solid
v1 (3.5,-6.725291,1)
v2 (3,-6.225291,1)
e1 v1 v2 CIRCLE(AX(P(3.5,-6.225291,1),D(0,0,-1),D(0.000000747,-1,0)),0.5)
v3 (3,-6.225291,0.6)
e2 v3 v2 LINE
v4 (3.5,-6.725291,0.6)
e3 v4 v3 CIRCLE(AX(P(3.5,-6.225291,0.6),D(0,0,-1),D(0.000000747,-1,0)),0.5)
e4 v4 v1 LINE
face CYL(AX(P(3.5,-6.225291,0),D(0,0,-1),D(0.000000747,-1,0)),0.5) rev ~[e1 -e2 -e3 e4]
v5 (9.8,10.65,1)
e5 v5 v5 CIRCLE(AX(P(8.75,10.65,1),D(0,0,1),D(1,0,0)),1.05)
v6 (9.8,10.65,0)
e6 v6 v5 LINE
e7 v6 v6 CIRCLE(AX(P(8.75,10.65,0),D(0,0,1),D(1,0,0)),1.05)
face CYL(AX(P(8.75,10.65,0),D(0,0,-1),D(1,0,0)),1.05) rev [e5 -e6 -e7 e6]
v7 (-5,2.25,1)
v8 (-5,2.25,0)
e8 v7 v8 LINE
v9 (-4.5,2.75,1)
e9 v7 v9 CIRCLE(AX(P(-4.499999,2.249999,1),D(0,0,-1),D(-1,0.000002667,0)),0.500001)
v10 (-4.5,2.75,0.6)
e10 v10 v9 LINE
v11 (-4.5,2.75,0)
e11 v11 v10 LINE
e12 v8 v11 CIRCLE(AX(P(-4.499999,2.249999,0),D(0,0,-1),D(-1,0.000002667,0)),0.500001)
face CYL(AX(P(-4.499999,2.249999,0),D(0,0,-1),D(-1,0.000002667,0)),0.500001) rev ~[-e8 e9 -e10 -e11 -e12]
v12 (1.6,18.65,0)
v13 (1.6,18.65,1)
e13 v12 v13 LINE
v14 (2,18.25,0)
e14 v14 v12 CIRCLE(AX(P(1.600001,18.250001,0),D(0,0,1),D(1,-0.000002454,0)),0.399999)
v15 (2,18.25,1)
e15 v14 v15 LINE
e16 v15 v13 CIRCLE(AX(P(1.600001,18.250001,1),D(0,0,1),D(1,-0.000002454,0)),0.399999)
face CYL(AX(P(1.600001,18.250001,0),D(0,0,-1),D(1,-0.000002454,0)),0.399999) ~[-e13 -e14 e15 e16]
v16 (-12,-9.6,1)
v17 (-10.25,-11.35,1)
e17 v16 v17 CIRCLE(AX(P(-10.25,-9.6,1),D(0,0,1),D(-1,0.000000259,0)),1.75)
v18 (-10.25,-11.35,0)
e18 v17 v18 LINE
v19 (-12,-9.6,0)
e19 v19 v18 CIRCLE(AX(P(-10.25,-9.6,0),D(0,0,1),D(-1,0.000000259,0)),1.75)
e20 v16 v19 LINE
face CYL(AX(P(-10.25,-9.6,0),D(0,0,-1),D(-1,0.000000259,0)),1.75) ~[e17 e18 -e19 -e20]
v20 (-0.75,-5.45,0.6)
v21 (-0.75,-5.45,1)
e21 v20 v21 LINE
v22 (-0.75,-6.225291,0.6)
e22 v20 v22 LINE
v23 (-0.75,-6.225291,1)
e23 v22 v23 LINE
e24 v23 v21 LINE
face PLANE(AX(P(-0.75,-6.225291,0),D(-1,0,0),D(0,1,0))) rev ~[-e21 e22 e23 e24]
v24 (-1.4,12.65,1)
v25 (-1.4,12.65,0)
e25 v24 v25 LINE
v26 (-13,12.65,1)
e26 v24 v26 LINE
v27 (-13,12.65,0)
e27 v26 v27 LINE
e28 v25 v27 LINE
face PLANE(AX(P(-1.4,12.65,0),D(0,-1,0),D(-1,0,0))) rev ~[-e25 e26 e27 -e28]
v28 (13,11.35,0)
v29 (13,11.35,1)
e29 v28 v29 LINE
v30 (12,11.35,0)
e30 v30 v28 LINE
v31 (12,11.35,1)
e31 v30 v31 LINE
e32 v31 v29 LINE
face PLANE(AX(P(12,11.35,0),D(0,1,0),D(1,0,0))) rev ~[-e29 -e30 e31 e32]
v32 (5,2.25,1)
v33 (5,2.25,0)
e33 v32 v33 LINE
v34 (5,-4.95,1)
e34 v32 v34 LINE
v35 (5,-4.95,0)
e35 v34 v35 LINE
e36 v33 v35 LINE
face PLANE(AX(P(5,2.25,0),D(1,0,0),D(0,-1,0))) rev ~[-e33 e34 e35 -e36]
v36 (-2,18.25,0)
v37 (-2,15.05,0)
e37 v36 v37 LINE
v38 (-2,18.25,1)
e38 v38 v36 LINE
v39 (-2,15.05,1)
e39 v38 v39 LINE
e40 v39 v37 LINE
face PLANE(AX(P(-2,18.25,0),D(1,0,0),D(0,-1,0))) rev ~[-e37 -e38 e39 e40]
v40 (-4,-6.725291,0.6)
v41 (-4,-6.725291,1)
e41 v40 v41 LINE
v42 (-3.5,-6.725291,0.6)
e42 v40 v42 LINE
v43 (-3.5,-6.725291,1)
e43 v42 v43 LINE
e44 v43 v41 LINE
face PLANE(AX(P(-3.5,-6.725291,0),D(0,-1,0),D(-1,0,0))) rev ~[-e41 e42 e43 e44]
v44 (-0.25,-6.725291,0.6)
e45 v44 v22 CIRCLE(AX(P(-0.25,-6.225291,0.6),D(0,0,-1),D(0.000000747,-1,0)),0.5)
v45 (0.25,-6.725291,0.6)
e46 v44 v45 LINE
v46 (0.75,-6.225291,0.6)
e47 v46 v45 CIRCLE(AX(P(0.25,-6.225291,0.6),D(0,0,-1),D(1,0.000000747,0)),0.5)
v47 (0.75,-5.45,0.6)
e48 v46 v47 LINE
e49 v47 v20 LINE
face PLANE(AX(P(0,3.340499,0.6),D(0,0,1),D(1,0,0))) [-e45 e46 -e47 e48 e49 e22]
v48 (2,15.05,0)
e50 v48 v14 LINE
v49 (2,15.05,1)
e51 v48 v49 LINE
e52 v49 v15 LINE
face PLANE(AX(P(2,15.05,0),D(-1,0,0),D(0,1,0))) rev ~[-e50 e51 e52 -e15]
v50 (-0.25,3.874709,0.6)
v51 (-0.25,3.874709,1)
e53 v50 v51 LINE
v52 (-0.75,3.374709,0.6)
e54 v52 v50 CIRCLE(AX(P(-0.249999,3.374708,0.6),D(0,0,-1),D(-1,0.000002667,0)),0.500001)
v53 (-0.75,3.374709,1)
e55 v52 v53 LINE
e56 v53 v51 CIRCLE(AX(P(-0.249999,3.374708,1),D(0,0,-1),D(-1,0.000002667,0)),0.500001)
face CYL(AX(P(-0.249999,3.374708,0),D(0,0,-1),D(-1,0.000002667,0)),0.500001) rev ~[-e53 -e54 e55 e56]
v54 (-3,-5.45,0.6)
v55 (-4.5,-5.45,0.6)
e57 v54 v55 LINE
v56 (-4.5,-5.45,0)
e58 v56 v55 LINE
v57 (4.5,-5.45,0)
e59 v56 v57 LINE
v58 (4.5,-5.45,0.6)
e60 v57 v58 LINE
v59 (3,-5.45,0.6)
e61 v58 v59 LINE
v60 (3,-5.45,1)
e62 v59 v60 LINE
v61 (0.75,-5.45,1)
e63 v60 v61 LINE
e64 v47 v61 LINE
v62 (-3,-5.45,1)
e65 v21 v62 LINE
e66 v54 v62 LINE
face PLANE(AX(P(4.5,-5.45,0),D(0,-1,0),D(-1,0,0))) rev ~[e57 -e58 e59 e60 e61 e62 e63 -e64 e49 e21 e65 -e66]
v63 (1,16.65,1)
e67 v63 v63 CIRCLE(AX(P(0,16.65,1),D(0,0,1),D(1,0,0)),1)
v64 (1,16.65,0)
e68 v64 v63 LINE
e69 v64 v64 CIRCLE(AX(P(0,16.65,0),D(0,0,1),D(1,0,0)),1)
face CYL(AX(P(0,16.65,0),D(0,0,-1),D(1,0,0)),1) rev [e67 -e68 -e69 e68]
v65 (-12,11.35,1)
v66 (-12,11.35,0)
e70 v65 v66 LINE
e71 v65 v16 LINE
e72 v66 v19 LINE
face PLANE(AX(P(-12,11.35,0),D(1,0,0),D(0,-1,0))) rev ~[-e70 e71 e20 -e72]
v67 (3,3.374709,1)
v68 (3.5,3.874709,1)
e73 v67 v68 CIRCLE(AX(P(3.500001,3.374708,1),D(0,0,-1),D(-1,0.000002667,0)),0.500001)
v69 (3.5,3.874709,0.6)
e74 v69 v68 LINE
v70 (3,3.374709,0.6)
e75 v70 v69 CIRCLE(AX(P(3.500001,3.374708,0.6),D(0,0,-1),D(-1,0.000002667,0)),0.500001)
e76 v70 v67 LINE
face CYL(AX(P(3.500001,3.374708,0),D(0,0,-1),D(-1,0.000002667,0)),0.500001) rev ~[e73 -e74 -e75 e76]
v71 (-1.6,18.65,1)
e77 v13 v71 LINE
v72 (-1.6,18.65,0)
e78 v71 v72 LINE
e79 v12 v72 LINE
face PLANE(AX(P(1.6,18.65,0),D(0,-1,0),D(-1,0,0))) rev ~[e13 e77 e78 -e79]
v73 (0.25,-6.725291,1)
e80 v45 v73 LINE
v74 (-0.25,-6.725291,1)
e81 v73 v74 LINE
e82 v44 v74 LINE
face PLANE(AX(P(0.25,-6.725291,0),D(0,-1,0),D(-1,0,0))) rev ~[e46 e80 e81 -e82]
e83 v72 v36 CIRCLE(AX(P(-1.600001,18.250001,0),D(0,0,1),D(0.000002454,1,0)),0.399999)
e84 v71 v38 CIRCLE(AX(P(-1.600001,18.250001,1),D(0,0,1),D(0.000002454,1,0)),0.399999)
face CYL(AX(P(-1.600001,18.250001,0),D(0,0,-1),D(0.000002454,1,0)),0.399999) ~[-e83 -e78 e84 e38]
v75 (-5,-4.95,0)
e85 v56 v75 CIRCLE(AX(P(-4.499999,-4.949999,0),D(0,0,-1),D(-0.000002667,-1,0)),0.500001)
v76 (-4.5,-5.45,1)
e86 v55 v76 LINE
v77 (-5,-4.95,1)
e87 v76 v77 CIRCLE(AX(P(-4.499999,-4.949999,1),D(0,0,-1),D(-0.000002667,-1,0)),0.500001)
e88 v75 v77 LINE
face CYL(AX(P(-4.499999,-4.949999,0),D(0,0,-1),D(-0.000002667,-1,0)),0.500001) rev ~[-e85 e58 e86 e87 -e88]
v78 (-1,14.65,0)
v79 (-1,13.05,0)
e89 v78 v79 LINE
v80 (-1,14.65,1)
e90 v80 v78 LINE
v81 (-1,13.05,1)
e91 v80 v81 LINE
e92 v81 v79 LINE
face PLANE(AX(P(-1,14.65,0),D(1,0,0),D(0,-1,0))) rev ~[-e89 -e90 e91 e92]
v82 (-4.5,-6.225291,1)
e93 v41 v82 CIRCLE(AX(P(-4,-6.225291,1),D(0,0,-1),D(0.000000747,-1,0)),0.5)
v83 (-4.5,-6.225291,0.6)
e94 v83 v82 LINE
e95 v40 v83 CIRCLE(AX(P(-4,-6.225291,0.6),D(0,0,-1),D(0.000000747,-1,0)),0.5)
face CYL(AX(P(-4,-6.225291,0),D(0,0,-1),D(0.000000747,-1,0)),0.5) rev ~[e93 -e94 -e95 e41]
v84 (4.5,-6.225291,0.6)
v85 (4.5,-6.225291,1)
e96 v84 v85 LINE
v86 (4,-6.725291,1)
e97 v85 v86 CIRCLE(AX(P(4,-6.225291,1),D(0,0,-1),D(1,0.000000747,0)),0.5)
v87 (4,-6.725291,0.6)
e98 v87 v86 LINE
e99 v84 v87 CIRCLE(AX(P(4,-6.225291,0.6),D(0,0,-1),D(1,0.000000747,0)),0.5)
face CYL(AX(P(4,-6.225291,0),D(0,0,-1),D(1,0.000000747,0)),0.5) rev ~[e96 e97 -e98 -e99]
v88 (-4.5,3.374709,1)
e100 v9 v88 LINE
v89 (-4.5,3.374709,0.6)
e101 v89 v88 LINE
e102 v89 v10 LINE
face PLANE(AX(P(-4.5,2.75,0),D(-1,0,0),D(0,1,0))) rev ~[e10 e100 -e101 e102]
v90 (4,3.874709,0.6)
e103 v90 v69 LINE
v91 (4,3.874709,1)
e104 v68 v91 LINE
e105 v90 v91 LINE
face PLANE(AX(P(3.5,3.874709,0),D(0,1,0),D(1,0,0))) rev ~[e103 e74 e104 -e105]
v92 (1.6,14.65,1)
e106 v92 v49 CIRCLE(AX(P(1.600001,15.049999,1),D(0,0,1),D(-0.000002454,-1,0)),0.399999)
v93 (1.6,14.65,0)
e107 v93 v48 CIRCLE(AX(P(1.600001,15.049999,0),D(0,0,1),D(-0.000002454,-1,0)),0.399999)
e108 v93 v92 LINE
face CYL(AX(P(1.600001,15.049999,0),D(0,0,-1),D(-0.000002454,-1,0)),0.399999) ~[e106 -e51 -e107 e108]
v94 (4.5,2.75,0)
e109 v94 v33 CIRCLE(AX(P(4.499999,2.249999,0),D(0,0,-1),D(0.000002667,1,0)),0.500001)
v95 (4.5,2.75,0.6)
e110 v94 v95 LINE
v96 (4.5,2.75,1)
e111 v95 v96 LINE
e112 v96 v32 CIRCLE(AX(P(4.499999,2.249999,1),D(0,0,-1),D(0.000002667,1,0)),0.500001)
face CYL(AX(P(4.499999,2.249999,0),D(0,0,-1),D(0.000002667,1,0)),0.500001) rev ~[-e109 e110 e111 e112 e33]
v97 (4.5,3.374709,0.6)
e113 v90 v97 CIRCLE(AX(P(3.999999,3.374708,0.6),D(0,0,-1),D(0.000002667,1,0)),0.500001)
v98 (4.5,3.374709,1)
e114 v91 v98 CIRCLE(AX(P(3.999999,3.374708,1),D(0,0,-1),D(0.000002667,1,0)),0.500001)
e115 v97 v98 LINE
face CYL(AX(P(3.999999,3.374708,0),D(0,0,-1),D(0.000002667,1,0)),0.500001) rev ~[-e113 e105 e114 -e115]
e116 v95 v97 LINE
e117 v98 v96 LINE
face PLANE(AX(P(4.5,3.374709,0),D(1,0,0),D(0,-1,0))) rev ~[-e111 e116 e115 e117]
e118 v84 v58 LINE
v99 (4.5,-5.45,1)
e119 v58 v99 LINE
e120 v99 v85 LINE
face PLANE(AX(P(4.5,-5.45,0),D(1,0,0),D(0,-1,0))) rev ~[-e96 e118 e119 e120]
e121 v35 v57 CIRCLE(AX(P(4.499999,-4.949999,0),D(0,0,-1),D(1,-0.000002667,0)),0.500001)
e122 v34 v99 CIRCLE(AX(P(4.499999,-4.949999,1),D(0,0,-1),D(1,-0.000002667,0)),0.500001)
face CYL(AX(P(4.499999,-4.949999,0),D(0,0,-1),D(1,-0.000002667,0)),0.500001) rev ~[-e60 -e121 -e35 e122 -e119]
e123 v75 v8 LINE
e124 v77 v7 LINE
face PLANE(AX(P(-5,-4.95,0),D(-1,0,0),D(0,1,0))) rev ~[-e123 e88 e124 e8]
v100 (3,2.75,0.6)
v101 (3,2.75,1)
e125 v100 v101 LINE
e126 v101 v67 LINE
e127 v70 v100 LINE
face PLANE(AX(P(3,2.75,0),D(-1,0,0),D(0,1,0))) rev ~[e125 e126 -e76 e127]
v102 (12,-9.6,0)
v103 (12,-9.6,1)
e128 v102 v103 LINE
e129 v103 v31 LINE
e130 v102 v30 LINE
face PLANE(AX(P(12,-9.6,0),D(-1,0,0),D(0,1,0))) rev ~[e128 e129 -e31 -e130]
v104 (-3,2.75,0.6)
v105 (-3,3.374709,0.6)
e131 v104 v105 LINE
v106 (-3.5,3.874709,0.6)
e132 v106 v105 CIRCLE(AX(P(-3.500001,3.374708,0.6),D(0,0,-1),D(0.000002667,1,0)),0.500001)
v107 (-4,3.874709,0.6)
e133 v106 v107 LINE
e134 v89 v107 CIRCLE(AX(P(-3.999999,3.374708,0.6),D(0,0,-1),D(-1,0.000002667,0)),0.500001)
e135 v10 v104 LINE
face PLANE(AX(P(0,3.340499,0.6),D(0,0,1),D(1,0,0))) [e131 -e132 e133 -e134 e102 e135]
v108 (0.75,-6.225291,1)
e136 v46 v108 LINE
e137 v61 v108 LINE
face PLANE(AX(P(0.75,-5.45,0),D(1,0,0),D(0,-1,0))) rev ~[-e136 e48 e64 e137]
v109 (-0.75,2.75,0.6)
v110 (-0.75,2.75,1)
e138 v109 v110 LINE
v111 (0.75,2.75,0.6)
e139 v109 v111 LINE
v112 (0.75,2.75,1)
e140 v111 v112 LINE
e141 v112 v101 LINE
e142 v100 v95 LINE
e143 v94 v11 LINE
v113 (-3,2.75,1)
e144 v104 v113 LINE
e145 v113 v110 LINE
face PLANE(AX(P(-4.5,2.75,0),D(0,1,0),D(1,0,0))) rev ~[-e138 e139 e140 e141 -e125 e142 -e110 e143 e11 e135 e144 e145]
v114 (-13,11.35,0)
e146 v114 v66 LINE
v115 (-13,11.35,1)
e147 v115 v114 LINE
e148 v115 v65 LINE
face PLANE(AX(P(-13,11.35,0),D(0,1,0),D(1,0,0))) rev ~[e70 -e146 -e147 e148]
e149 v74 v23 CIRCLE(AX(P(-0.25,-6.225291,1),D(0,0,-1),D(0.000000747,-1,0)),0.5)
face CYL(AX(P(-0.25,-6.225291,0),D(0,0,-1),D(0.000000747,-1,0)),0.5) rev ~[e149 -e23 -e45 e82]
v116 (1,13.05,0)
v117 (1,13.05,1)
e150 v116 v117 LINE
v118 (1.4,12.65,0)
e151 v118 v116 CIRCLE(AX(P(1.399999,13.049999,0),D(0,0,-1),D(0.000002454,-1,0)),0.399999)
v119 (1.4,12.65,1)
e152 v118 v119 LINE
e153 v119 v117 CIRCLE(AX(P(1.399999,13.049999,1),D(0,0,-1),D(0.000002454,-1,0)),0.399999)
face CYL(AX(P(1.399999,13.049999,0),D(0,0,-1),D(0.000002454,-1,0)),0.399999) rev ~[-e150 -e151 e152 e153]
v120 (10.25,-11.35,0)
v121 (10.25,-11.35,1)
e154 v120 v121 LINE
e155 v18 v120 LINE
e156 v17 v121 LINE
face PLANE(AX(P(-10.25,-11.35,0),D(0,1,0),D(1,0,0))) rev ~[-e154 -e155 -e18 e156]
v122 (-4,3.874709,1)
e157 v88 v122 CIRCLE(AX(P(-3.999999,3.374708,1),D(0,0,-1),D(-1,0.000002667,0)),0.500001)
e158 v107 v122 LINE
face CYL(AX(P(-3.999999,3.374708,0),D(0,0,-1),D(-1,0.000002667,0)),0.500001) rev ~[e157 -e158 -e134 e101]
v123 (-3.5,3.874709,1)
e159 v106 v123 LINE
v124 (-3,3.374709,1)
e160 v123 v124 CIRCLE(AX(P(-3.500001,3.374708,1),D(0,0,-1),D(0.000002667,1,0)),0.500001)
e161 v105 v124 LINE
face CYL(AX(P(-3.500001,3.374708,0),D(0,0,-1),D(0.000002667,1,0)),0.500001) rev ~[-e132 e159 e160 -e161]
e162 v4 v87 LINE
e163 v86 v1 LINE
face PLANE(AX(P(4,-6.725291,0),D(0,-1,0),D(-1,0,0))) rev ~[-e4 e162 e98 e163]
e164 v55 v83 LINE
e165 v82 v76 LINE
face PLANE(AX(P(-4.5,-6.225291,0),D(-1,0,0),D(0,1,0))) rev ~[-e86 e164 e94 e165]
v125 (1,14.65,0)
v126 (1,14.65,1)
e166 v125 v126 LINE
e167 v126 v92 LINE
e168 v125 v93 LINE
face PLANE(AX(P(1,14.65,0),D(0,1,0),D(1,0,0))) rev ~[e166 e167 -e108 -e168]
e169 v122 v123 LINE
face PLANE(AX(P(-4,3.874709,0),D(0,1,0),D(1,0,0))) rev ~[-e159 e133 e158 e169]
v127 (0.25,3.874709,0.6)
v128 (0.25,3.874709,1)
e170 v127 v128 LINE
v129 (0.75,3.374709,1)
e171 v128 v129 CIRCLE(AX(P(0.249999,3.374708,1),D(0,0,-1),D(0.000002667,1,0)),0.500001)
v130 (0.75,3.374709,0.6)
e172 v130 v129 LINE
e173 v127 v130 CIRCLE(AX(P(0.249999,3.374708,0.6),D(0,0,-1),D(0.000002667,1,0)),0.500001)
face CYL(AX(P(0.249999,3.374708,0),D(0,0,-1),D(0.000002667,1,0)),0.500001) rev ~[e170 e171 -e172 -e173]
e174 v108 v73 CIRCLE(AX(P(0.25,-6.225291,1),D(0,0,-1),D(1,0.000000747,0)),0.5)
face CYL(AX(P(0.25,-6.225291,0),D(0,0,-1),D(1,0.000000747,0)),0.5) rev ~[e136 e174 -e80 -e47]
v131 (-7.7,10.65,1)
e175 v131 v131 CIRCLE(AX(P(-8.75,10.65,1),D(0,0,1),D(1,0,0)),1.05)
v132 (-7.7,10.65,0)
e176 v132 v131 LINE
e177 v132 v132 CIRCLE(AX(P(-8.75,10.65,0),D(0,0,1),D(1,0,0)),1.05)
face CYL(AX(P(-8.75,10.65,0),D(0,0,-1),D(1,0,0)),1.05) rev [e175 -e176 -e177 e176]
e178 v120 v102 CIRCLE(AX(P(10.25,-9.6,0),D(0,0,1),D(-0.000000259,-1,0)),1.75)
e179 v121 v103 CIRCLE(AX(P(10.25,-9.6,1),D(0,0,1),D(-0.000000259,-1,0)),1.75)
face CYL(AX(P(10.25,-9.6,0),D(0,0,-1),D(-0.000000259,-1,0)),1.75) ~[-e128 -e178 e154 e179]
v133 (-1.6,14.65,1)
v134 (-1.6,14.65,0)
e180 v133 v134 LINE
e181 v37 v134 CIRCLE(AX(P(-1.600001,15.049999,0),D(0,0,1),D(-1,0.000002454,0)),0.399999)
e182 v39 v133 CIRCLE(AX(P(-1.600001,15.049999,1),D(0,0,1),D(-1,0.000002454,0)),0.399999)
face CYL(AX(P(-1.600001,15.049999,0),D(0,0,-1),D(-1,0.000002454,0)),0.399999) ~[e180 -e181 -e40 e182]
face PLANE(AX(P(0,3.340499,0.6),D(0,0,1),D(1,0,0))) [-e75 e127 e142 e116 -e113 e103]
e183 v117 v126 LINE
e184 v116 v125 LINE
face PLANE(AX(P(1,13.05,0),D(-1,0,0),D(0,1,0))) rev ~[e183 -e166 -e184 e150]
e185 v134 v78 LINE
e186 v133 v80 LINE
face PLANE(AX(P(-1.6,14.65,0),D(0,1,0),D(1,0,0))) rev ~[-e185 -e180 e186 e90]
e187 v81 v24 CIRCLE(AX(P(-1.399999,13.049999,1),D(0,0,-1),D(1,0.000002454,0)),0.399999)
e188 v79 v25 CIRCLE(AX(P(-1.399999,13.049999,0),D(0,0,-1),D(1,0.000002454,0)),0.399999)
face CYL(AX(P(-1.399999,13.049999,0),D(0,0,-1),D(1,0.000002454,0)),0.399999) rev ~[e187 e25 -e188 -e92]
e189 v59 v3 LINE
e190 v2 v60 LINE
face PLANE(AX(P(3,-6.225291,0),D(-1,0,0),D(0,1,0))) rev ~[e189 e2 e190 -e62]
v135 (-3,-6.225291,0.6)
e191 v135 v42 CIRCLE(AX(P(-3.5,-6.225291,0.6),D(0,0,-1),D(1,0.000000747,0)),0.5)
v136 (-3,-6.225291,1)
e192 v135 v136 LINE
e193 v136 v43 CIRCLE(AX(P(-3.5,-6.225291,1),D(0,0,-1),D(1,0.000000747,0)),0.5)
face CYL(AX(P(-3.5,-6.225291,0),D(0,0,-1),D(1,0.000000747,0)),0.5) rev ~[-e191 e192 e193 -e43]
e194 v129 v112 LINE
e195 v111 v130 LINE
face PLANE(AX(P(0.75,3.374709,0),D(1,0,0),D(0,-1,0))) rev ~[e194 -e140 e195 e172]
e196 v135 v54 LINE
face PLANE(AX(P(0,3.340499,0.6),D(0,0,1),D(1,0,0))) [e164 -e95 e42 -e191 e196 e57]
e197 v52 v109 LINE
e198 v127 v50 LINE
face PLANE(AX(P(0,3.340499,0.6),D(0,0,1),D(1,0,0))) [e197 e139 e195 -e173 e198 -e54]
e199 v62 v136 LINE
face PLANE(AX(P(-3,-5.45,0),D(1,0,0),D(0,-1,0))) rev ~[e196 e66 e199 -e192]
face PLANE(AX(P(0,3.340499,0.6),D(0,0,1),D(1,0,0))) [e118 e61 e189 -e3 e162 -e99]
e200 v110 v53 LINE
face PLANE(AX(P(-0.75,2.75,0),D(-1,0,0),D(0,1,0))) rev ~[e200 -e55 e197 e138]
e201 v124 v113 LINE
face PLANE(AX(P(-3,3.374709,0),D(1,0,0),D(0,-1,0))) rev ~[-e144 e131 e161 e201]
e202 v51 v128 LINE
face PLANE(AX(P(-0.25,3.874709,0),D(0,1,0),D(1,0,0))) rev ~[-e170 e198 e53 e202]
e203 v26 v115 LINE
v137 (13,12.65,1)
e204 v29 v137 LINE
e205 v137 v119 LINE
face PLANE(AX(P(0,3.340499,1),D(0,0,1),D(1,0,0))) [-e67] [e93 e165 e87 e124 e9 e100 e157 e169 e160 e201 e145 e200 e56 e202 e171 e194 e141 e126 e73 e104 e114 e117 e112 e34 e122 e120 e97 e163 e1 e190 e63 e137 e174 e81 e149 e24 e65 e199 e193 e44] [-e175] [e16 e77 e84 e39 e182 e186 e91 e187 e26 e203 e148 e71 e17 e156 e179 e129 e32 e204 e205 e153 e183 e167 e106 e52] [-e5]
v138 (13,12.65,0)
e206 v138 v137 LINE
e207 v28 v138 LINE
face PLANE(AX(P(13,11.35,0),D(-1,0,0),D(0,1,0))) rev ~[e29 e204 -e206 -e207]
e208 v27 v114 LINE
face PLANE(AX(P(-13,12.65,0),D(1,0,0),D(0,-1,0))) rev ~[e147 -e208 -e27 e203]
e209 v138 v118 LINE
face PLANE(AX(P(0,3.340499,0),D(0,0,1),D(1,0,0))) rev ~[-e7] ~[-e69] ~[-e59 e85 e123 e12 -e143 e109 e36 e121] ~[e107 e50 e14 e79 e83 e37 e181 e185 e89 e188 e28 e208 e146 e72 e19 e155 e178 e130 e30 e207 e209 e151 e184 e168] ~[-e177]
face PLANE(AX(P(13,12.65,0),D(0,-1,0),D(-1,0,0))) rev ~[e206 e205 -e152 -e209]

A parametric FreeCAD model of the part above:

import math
import FreeCAD as App
import Part
import Sketcher
Q = App.Units.Quantity

doc = App.newDocument("Part")
body = doc.addObject("PartDesign::Body", "Body")

# Sketch on XY plane
sketch1 = body.newObject("Sketcher::SketchObject", "Sketch")
sketch1.AttachmentSupport = (doc.getObject("XY_Plane"), [""])
sketch1.MapMode = "FlatFace"
sketch1.addGeometry([
    Part.LineSegment(App.Vector(-10.25, -11.35, 0), App.Vector(10.25, -11.35, 0)),  # 0
    Part.ArcOfCircle(Part.Circle(App.Vector(10.25, -9.6, 0), App.Vector(0, 0, 1), 1.75), math.radians(-90.000015), math.radians(0.000015)),  # 1
    Part.LineSegment(App.Vector(12, -9.6, 0), App.Vector(12, 11.35, 0)),  # 2
    Part.LineSegment(App.Vector(12, 11.35, 0), App.Vector(13, 11.35, 0)),  # 3
    Part.LineSegment(App.Vector(13, 11.35, 0), App.Vector(13, 12.65, 0)),  # 4
    Part.LineSegment(App.Vector(13, 12.65, 0), App.Vector(1.4, 12.65, 0)),  # 5
    Part.ArcOfCircle(Part.Circle(App.Vector(1.399999, 13.049999, 0), App.Vector(0, 0, 1), 0.399999), math.radians(179.999859), math.radians(270.000141)),  # 6
    Part.LineSegment(App.Vector(1, 13.05, 0), App.Vector(1, 14.65, 0)),  # 7
    Part.LineSegment(App.Vector(1, 14.65, 0), App.Vector(1.6, 14.65, 0)),  # 8
    Part.ArcOfCircle(Part.Circle(App.Vector(1.600001, 15.049999, 0), App.Vector(0, 0, 1), 0.399999), math.radians(-90.000141), math.radians(0.000141)),  # 9
    Part.LineSegment(App.Vector(2, 15.05, 0), App.Vector(2, 18.25, 0)),  # 10
    Part.ArcOfCircle(Part.Circle(App.Vector(1.600001, 18.250001, 0), App.Vector(0, 0, 1), 0.399999), math.radians(-0.000141), math.radians(90.000141)),  # 11
    Part.LineSegment(App.Vector(1.6, 18.65, 0), App.Vector(-1.6, 18.65, 0)),  # 12
    Part.ArcOfCircle(Part.Circle(App.Vector(-1.600001, 18.250001, 0), App.Vector(0, 0, 1), 0.399999), math.radians(89.999859), math.radians(180.000141)),  # 13
    Part.LineSegment(App.Vector(-2, 18.25, 0), App.Vector(-2, 15.05, 0)),  # 14
    Part.ArcOfCircle(Part.Circle(App.Vector(-1.600001, 15.049999, 0), App.Vector(0, 0, 1), 0.399999), math.radians(179.999859), math.radians(270.000141)),  # 15
    Part.LineSegment(App.Vector(-1.6, 14.65, 0), App.Vector(-1, 14.65, 0)),  # 16
    Part.LineSegment(App.Vector(-1, 14.65, 0), App.Vector(-1, 13.05, 0)),  # 17
    Part.ArcOfCircle(Part.Circle(App.Vector(-1.399999, 13.049999, 0), App.Vector(0, 0, 1), 0.399999), math.radians(-90.000141), math.radians(0.000141)),  # 18
    Part.LineSegment(App.Vector(-1.4, 12.65, 0), App.Vector(-13, 12.65, 0)),  # 19
    Part.LineSegment(App.Vector(-13, 12.65, 0), App.Vector(-13, 11.35, 0)),  # 20
    Part.LineSegment(App.Vector(-13, 11.35, 0), App.Vector(-12, 11.35, 0)),  # 21
    Part.LineSegment(App.Vector(-12, 11.35, 0), App.Vector(-12, -9.6, 0)),  # 22
    Part.ArcOfCircle(Part.Circle(App.Vector(-10.25, -9.6, 0), App.Vector(0, 0, 1), 1.75), math.radians(179.999985), math.radians(270.000015)),  # 23
    Part.LineSegment(App.Vector(-5, -4.95, 0), App.Vector(-5, 2.25, 0)),  # 24
    Part.ArcOfCircle(Part.Circle(App.Vector(-4.499999, 2.249999, 0), App.Vector(0, 0, 1), 0.500001), math.radians(90.000153), math.radians(179.999847)),  # 25
    Part.LineSegment(App.Vector(-4.5, 2.75, 0), App.Vector(4.5, 2.75, 0)),  # 26
    Part.ArcOfCircle(Part.Circle(App.Vector(4.499999, 2.249999, 0), App.Vector(0, 0, 1), 0.500001), math.radians(0.000153), math.radians(89.999847)),  # 27
    Part.LineSegment(App.Vector(5, 2.25, 0), App.Vector(5, -4.95, 0)),  # 28
    Part.ArcOfCircle(Part.Circle(App.Vector(4.499999, -4.949999, 0), App.Vector(0, 0, 1), 0.500001), math.radians(-89.999847), math.radians(-0.000153)),  # 29
    Part.LineSegment(App.Vector(4.5, -5.45, 0), App.Vector(-4.5, -5.45, 0)),  # 30
    Part.ArcOfCircle(Part.Circle(App.Vector(-4.499999, -4.949999, 0), App.Vector(0, 0, 1), 0.500001), math.radians(-179.999847), math.radians(-90.000153)),  # 31
    Part.Circle(App.Vector(-8.75, 10.65, 0), App.Vector(0, 0, 1), 1.05),  # 32
    Part.Circle(App.Vector(8.75, 10.65, 0), App.Vector(0, 0, 1), 1.05),  # 33
    Part.Circle(App.Vector(0, 16.65, 0), App.Vector(0, 0, 1), 1),  # 34
], False)
sketch1.addConstraint([
    Sketcher.Constraint("Tangent", 0, 2, 1, 1),
    Sketcher.Constraint("Tangent", 1, 2, 2, 1),
    Sketcher.Constraint("Coincident", 2, 2, 3, 1),
    Sketcher.Constraint("Coincident", 3, 2, 4, 1),
    Sketcher.Constraint("Coincident", 4, 2, 5, 1),
    Sketcher.Constraint("Coincident", 5, 2, 6, 2),
    Sketcher.Constraint("Coincident", 6, 1, 7, 1),
    Sketcher.Constraint("Coincident", 7, 2, 8, 1),
    Sketcher.Constraint("Coincident", 8, 2, 9, 1),
    Sketcher.Constraint("Coincident", 9, 2, 10, 1),
    Sketcher.Constraint("Coincident", 10, 2, 11, 1),
    Sketcher.Constraint("Coincident", 11, 2, 12, 1),
    Sketcher.Constraint("Coincident", 12, 2, 13, 1),
    Sketcher.Constraint("Coincident", 13, 2, 14, 1),
    Sketcher.Constraint("Coincident", 14, 2, 15, 1),
    Sketcher.Constraint("Coincident", 15, 2, 16, 1),
    Sketcher.Constraint("Coincident", 16, 2, 17, 1),
    Sketcher.Constraint("Coincident", 17, 2, 18, 2),
    Sketcher.Constraint("Coincident", 18, 1, 19, 1),
    Sketcher.Constraint("Coincident", 19, 2, 20, 1),
    Sketcher.Constraint("Coincident", 20, 2, 21, 1),
    Sketcher.Constraint("Coincident", 21, 2, 22, 1),
    Sketcher.Constraint("Tangent", 22, 2, 23, 1),
    Sketcher.Constraint("Tangent", 23, 2, 0, 1),
    Sketcher.Constraint("Coincident", 24, 2, 25, 2),
    Sketcher.Constraint("Coincident", 25, 1, 26, 1),
    Sketcher.Constraint("Coincident", 26, 2, 27, 2),
    Sketcher.Constraint("Coincident", 27, 1, 28, 1),
    Sketcher.Constraint("Coincident", 28, 2, 29, 2),
    Sketcher.Constraint("Coincident", 29, 1, 30, 1),
    Sketcher.Constraint("Coincident", 30, 2, 31, 2),
    Sketcher.Constraint("Coincident", 31, 1, 24, 1),
    Sketcher.Constraint("Horizontal", 0),
    Sketcher.Constraint("Vertical", 2),
    Sketcher.Constraint("Horizontal", 3),
    Sketcher.Constraint("Vertical", 4),
    Sketcher.Constraint("Horizontal", 5),
    Sketcher.Constraint("Vertical", 7),
    Sketcher.Constraint("Horizontal", 8),
    Sketcher.Constraint("Vertical", 10),
    Sketcher.Constraint("Horizontal", 12),
    Sketcher.Constraint("Vertical", 14),
    Sketcher.Constraint("Horizontal", 16),
    Sketcher.Constraint("Vertical", 17),
    Sketcher.Constraint("Horizontal", 19),
    Sketcher.Constraint("Vertical", 20),
    Sketcher.Constraint("Horizontal", 21),
    Sketcher.Constraint("Vertical", 22),
    Sketcher.Constraint("Vertical", 24),
    Sketcher.Constraint("Horizontal", 26),
    Sketcher.Constraint("Vertical", 28),
    Sketcher.Constraint("Horizontal", 30),
    Sketcher.Constraint("Equal", 6, 9),
    Sketcher.Constraint("Equal", 9, 11),
    Sketcher.Constraint("Equal", 11, 13),
    Sketcher.Constraint("Equal", 13, 15),
    Sketcher.Constraint("Equal", 15, 18),
    Sketcher.Constraint("Equal", 1, 23),
    Sketcher.Constraint("Equal", 25, 27),
    Sketcher.Constraint("Equal", 27, 29),
    Sketcher.Constraint("Equal", 29, 31),
    Sketcher.Constraint("Equal", 32, 33),
    Sketcher.Constraint("Symmetric", 9, 3, 15, 3, -2),
    Sketcher.Constraint("Symmetric", 6, 3, 18, 3, -2),
    Sketcher.Constraint("Symmetric", 32, 3, 33, 3, -2),
    Sketcher.Constraint("Symmetric", 3, 2, 20, 2, -2),
    Sketcher.Constraint("Symmetric", 24, 2, 27, 1, -2),
    Sketcher.Constraint("PointOnObject", 34, 3, -2),
    Sketcher.Constraint("Horizontal", 18, 3, 6, 1),
    Sketcher.Constraint("Horizontal", 15, 3, 9, 2),
    Sketcher.Constraint("Horizontal", 13, 3, 10, 2),
    Sketcher.Constraint("Horizontal", 10, 2, 13, 2),
    Sketcher.Constraint("Horizontal", 9, 2, 14, 2),
    Sketcher.Constraint("Horizontal", 6, 1, 17, 2),
    Sketcher.Constraint("Horizontal", 27, 3, 24, 2),
    Sketcher.Constraint("Horizontal", 31, 3, 28, 2),
    Sketcher.Constraint("Horizontal", 28, 2, 31, 1),
    Sketcher.Constraint("Vertical", 6, 3, 5, 2),
    Sketcher.Constraint("Vertical", 11, 3, 8, 2),
    Sketcher.Constraint("Vertical", 8, 2, 11, 2),
    Sketcher.Constraint("Vertical", 15, 3, 12, 2),
    Sketcher.Constraint("Vertical", 12, 2, 15, 2),
    Sketcher.Constraint("Vertical", 31, 3, 25, 1),
    Sketcher.Constraint("Vertical", 29, 3, 26, 2),
    Sketcher.Constraint("Vertical", 26, 2, 29, 1),
    Sketcher.Constraint("Vertical", 25, 1, 30, 2),
    Sketcher.Constraint("Equal", 5, 19),
    Sketcher.Constraint("Equal", 3, 21),
    Sketcher.Constraint("Equal", 12, 10),
    Sketcher.Constraint("Diameter", 34, Q("2 mm")),
    Sketcher.Constraint("Diameter", 32, Q("2.1 mm")),
    Sketcher.Constraint("Radius", 6, Q("0.399999 mm")),
    Sketcher.Constraint("Radius", 25, Q("0.500001 mm")),
    Sketcher.Constraint("DistanceX", 3, 1, 3, 2, Q("1 mm")),
    Sketcher.Constraint("DistanceX", 26, 1, 26, 2, Q("9 mm")),
    Sketcher.Constraint("Radius", 1, Q("1.75 mm")),
    Sketcher.Constraint("DistanceX", 0, 1, 0, 2, Q("20.5 mm")),
    Sketcher.Constraint("DistanceX", 5, 2, 5, 1, Q("11.6 mm")),
    Sketcher.Constraint("DistanceX", 8, 1, 8, 2, Q("0.6 mm")),
    Sketcher.Constraint("DistanceY", 4, 1, 4, 2, Q("1.3 mm")),
    Sketcher.Constraint("DistanceY", 7, 1, 7, 2, Q("1.6 mm")),
    Sketcher.Constraint("DistanceY", 24, 1, 24, 2, Q("7.2 mm")),
    Sketcher.Constraint("DistanceY", 33, 3, 4, 2, Q("2 mm")),
    Sketcher.Constraint("DistanceY", 5, 2, 34, 3, Q("4 mm")),
    Sketcher.Constraint("DistanceY", 2, 1, 2, 2, Q("20.95 mm")),
    Sketcher.Constraint("DistanceY", 1, 3, -1, 1, Q("9.6 mm")),
    Sketcher.Constraint("DistanceY", 25, 3, 18, 3, Q("10.8 mm")),
    Sketcher.Constraint("DistanceX", 32, 3, -1, 1, Q("8.75 mm")),
])
pad1 = body.newObject("PartDesign::Pad", "Pad")
pad1.Profile = sketch1
pad1.Length = 0.6

# Sketch on XY plane
sketch2 = body.newObject("Sketcher::SketchObject", "Sketch001")
sketch2.AttachmentSupport = (doc.getObject("XY_Plane"), [""])
sketch2.MapMode = "FlatFace"
sketch2.addGeometry([
    Part.LineSegment(App.Vector(-10.25, -11.35, 0), App.Vector(10.25, -11.35, 0)),  # 0
    Part.ArcOfCircle(Part.Circle(App.Vector(10.25, -9.6, 0), App.Vector(0, 0, 1), 1.75), math.radians(-90.000015), math.radians(0.000015)),  # 1
    Part.LineSegment(App.Vector(12, -9.6, 0), App.Vector(12, 11.35, 0)),  # 2
    Part.LineSegment(App.Vector(12, 11.35, 0), App.Vector(13, 11.35, 0)),  # 3
    Part.LineSegment(App.Vector(13, 11.35, 0), App.Vector(13, 12.65, 0)),  # 4
    Part.LineSegment(App.Vector(13, 12.65, 0), App.Vector(1.4, 12.65, 0)),  # 5
    Part.ArcOfCircle(Part.Circle(App.Vector(1.399999, 13.049999, 0), App.Vector(0, 0, 1), 0.399999), math.radians(179.999859), math.radians(270.000141)),  # 6
    Part.LineSegment(App.Vector(1, 13.05, 0), App.Vector(1, 14.65, 0)),  # 7
    Part.LineSegment(App.Vector(1, 14.65, 0), App.Vector(1.6, 14.65, 0)),  # 8
    Part.ArcOfCircle(Part.Circle(App.Vector(1.600001, 15.049999, 0), App.Vector(0, 0, 1), 0.399999), math.radians(-90.000141), math.radians(0.000141)),  # 9
    Part.LineSegment(App.Vector(2, 15.05, 0), App.Vector(2, 18.25, 0)),  # 10
    Part.ArcOfCircle(Part.Circle(App.Vector(1.600001, 18.250001, 0), App.Vector(0, 0, 1), 0.399999), math.radians(-0.000141), math.radians(90.000141)),  # 11
    Part.LineSegment(App.Vector(1.6, 18.65, 0), App.Vector(-1.6, 18.65, 0)),  # 12
    Part.ArcOfCircle(Part.Circle(App.Vector(-1.600001, 18.250001, 0), App.Vector(0, 0, 1), 0.399999), math.radians(89.999859), math.radians(180.000141)),  # 13
    Part.LineSegment(App.Vector(-2, 18.25, 0), App.Vector(-2, 15.05, 0)),  # 14
    Part.ArcOfCircle(Part.Circle(App.Vector(-1.600001, 15.049999, 0), App.Vector(0, 0, 1), 0.399999), math.radians(179.999859), math.radians(270.000141)),  # 15
    Part.LineSegment(App.Vector(-1.6, 14.65, 0), App.Vector(-1, 14.65, 0)),  # 16
    Part.LineSegment(App.Vector(-1, 14.65, 0), App.Vector(-1, 13.05, 0)),  # 17
    Part.ArcOfCircle(Part.Circle(App.Vector(-1.399999, 13.049999, 0), App.Vector(0, 0, 1), 0.399999), math.radians(-90.000141), math.radians(0.000141)),  # 18
    Part.LineSegment(App.Vector(-1.4, 12.65, 0), App.Vector(-13, 12.65, 0)),  # 19
    Part.LineSegment(App.Vector(-13, 12.65, 0), App.Vector(-13, 11.35, 0)),  # 20
    Part.LineSegment(App.Vector(-13, 11.35, 0), App.Vector(-12, 11.35, 0)),  # 21
    Part.LineSegment(App.Vector(-12, 11.35, 0), App.Vector(-12, -9.6, 0)),  # 22
    Part.ArcOfCircle(Part.Circle(App.Vector(-10.25, -9.6, 0), App.Vector(0, 0, 1), 1.75), math.radians(179.999985), math.radians(270.000015)),  # 23
    Part.LineSegment(App.Vector(-5, -4.95, 0), App.Vector(-5, 2.25, 0)),  # 24
    Part.ArcOfCircle(Part.Circle(App.Vector(-4.499999, 2.249999, 0), App.Vector(0, 0, 1), 0.500001), math.radians(90.000153), math.radians(179.999847)),  # 25
    Part.LineSegment(App.Vector(-4.5, 2.75, 0), App.Vector(-4.5, 3.374709, 0)),  # 26
    Part.ArcOfCircle(Part.Circle(App.Vector(-3.999999, 3.374708, 0), App.Vector(0, 0, 1), 0.500001), math.radians(90.000153), math.radians(179.999847)),  # 27
    Part.LineSegment(App.Vector(-4, 3.874709, 0), App.Vector(-3.5, 3.874709, 0)),  # 28
    Part.ArcOfCircle(Part.Circle(App.Vector(-3.500001, 3.374708, 0), App.Vector(0, 0, 1), 0.500001), math.radians(0.000153), math.radians(89.999847)),  # 29
    Part.LineSegment(App.Vector(-3, 3.374709, 0), App.Vector(-3, 2.75, 0)),  # 30
    Part.LineSegment(App.Vector(-3, 2.75, 0), App.Vector(-0.75, 2.75, 0)),  # 31
    Part.LineSegment(App.Vector(-0.75, 2.75, 0), App.Vector(-0.75, 3.374709, 0)),  # 32
    Part.ArcOfCircle(Part.Circle(App.Vector(-0.249999, 3.374708, 0), App.Vector(0, 0, 1), 0.500001), math.radians(90.000153), math.radians(179.999847)),  # 33
    Part.LineSegment(App.Vector(-0.25, 3.874709, 0), App.Vector(0.25, 3.874709, 0)),  # 34
    Part.ArcOfCircle(Part.Circle(App.Vector(0.249999, 3.374708, 0), App.Vector(0, 0, 1), 0.500001), math.radians(0.000153), math.radians(89.999847)),  # 35
    Part.LineSegment(App.Vector(0.75, 3.374709, 0), App.Vector(0.75, 2.75, 0)),  # 36
    Part.LineSegment(App.Vector(0.75, 2.75, 0), App.Vector(3, 2.75, 0)),  # 37
    Part.LineSegment(App.Vector(3, 2.75, 0), App.Vector(3, 3.374709, 0)),  # 38
    Part.ArcOfCircle(Part.Circle(App.Vector(3.500001, 3.374708, 0), App.Vector(0, 0, 1), 0.500001), math.radians(90.000153), math.radians(179.999847)),  # 39
    Part.LineSegment(App.Vector(3.5, 3.874709, 0), App.Vector(4, 3.874709, 0)),  # 40
    Part.ArcOfCircle(Part.Circle(App.Vector(3.999999, 3.374708, 0), App.Vector(0, 0, 1), 0.500001), math.radians(0.000153), math.radians(89.999847)),  # 41
    Part.LineSegment(App.Vector(4.5, 3.374709, 0), App.Vector(4.5, 2.75, 0)),  # 42
    Part.ArcOfCircle(Part.Circle(App.Vector(4.499999, 2.249999, 0), App.Vector(0, 0, 1), 0.500001), math.radians(0.000153), math.radians(89.999847)),  # 43
    Part.LineSegment(App.Vector(5, 2.25, 0), App.Vector(5, -4.95, 0)),  # 44
    Part.ArcOfCircle(Part.Circle(App.Vector(4.499999, -4.949999, 0), App.Vector(0, 0, 1), 0.500001), math.radians(-89.999847), math.radians(-0.000153)),  # 45
    Part.LineSegment(App.Vector(4.5, -5.45, 0), App.Vector(4.5, -6.225291, 0)),  # 46
    Part.ArcOfCircle(Part.Circle(App.Vector(4, -6.225291, 0), App.Vector(0, 0, 1), 0.5), math.radians(-90.000043), math.radians(0.000043)),  # 47
    Part.LineSegment(App.Vector(4, -6.725291, 0), App.Vector(3.5, -6.725291, 0)),  # 48
    Part.ArcOfCircle(Part.Circle(App.Vector(3.5, -6.225291, 0), App.Vector(0, 0, 1), 0.5), math.radians(179.999957), math.radians(270.000043)),  # 49
    Part.LineSegment(App.Vector(3, -6.225291, 0), App.Vector(3, -5.45, 0)),  # 50
    Part.LineSegment(App.Vector(3, -5.45, 0), App.Vector(0.75, -5.45, 0)),  # 51
    Part.LineSegment(App.Vector(0.75, -5.45, 0), App.Vector(0.75, -6.225291, 0)),  # 52
    Part.ArcOfCircle(Part.Circle(App.Vector(0.25, -6.225291, 0), App.Vector(0, 0, 1), 0.5), math.radians(-90.000043), math.radians(0.000043)),  # 53
    Part.LineSegment(App.Vector(0.25, -6.725291, 0), App.Vector(-0.25, -6.725291, 0)),  # 54
    Part.ArcOfCircle(Part.Circle(App.Vector(-0.25, -6.225291, 0), App.Vector(0, 0, 1), 0.5), math.radians(179.999957), math.radians(270.000043)),  # 55
    Part.LineSegment(App.Vector(-0.75, -6.225291, 0), App.Vector(-0.75, -5.45, 0)),  # 56
    Part.LineSegment(App.Vector(-0.75, -5.45, 0), App.Vector(-3, -5.45, 0)),  # 57
    Part.LineSegment(App.Vector(-3, -5.45, 0), App.Vector(-3, -6.225291, 0)),  # 58
    Part.ArcOfCircle(Part.Circle(App.Vector(-3.5, -6.225291, 0), App.Vector(0, 0, 1), 0.5), math.radians(-90.000043), math.radians(0.000043)),  # 59
    Part.LineSegment(App.Vector(-3.5, -6.725291, 0), App.Vector(-4, -6.725291, 0)),  # 60
    Part.ArcOfCircle(Part.Circle(App.Vector(-4, -6.225291, 0), App.Vector(0, 0, 1), 0.5), math.radians(179.999957), math.radians(270.000043)),  # 61
    Part.LineSegment(App.Vector(-4.5, -6.225291, 0), App.Vector(-4.5, -5.45, 0)),  # 62
    Part.ArcOfCircle(Part.Circle(App.Vector(-4.499999, -4.949999, 0), App.Vector(0, 0, 1), 0.500001), math.radians(-179.999847), math.radians(-90.000153)),  # 63
    Part.Circle(App.Vector(-8.75, 10.65, 0), App.Vector(0, 0, 1), 1.05),  # 64
    Part.Circle(App.Vector(8.75, 10.65, 0), App.Vector(0, 0, 1), 1.05),  # 65
    Part.Circle(App.Vector(0, 16.65, 0), App.Vector(0, 0, 1), 1),  # 66
], False)
sketch2.addConstraint([
    Sketcher.Constraint("Tangent", 0, 2, 1, 1),
    Sketcher.Constraint("Tangent", 1, 2, 2, 1),
    Sketcher.Constraint("Coincident", 2, 2, 3, 1),
    Sketcher.Constraint("Coincident", 3, 2, 4, 1),
    Sketcher.Constraint("Coincident", 4, 2, 5, 1),
    Sketcher.Constraint("Coincident", 5, 2, 6, 2),
    Sketcher.Constraint("Coincident", 6, 1, 7, 1),
    Sketcher.Constraint("Coincident", 7, 2, 8, 1),
    Sketcher.Constraint("Coincident", 8, 2, 9, 1),
    Sketcher.Constraint("Coincident", 9, 2, 10, 1),
    Sketcher.Constraint("Coincident", 10, 2, 11, 1),
    Sketcher.Constraint("Coincident", 11, 2, 12, 1),
    Sketcher.Constraint("Coincident", 12, 2, 13, 1),
    Sketcher.Constraint("Coincident", 13, 2, 14, 1),
    Sketcher.Constraint("Coincident", 14, 2, 15, 1),
    Sketcher.Constraint("Coincident", 15, 2, 16, 1),
    Sketcher.Constraint("Coincident", 16, 2, 17, 1),
    Sketcher.Constraint("Coincident", 17, 2, 18, 2),
    Sketcher.Constraint("Coincident", 18, 1, 19, 1),
    Sketcher.Constraint("Coincident", 19, 2, 20, 1),
    Sketcher.Constraint("Coincident", 20, 2, 21, 1),
    Sketcher.Constraint("Coincident", 21, 2, 22, 1),
    Sketcher.Constraint("Tangent", 22, 2, 23, 1),
    Sketcher.Constraint("Tangent", 23, 2, 0, 1),
    Sketcher.Constraint("Coincident", 24, 2, 25, 2),
    Sketcher.Constraint("Coincident", 25, 1, 26, 1),
    Sketcher.Constraint("Coincident", 26, 2, 27, 2),
    Sketcher.Constraint("Coincident", 27, 1, 28, 1),
    Sketcher.Constraint("Coincident", 28, 2, 29, 2),
    Sketcher.Constraint("Coincident", 29, 1, 30, 1),
    Sketcher.Constraint("Coincident", 30, 2, 31, 1),
    Sketcher.Constraint("Coincident", 31, 2, 32, 1),
    Sketcher.Constraint("Coincident", 32, 2, 33, 2),
    Sketcher.Constraint("Coincident", 33, 1, 34, 1),
    Sketcher.Constraint("Coincident", 34, 2, 35, 2),
    Sketcher.Constraint("Coincident", 35, 1, 36, 1),
    Sketcher.Constraint("Coincident", 36, 2, 37, 1),
    Sketcher.Constraint("Coincident", 37, 2, 38, 1),
    Sketcher.Constraint("Coincident", 38, 2, 39, 2),
    Sketcher.Constraint("Coincident", 39, 1, 40, 1),
    Sketcher.Constraint("Coincident", 40, 2, 41, 2),
    Sketcher.Constraint("Coincident", 41, 1, 42, 1),
    Sketcher.Constraint("Coincident", 42, 2, 43, 2),
    Sketcher.Constraint("Coincident", 43, 1, 44, 1),
    Sketcher.Constraint("Coincident", 44, 2, 45, 2),
    Sketcher.Constraint("Coincident", 45, 1, 46, 1),
    Sketcher.Constraint("Tangent", 46, 2, 47, 2),
    Sketcher.Constraint("Tangent", 47, 1, 48, 1),
    Sketcher.Constraint("Tangent", 48, 2, 49, 2),
    Sketcher.Constraint("Tangent", 49, 1, 50, 1),
    Sketcher.Constraint("Coincident", 50, 2, 51, 1),
    Sketcher.Constraint("Coincident", 51, 2, 52, 1),
    Sketcher.Constraint("Tangent", 52, 2, 53, 2),
    Sketcher.Constraint("Tangent", 53, 1, 54, 1),
    Sketcher.Constraint("Tangent", 54, 2, 55, 2),
    Sketcher.Constraint("Tangent", 55, 1, 56, 1),
    Sketcher.Constraint("Coincident", 56, 2, 57, 1),
    Sketcher.Constraint("Coincident", 57, 2, 58, 1),
    Sketcher.Constraint("Tangent", 58, 2, 59, 2),
    Sketcher.Constraint("Tangent", 59, 1, 60, 1),
    Sketcher.Constraint("Tangent", 60, 2, 61, 2),
    Sketcher.Constraint("Tangent", 61, 1, 62, 1),
    Sketcher.Constraint("Coincident", 62, 2, 63, 2),
    Sketcher.Constraint("Coincident", 63, 1, 24, 1),
    Sketcher.Constraint("Horizontal", 0),
    Sketcher.Constraint("Vertical", 2),
    Sketcher.Constraint("Horizontal", 3),
    Sketcher.Constraint("Vertical", 4),
    Sketcher.Constraint("Horizontal", 5),
    Sketcher.Constraint("Vertical", 7),
    Sketcher.Constraint("Horizontal", 8),
    Sketcher.Constraint("Vertical", 10),
    Sketcher.Constraint("Horizontal", 12),
    Sketcher.Constraint("Vertical", 14),
    Sketcher.Constraint("Horizontal", 16),
    Sketcher.Constraint("Vertical", 17),
    Sketcher.Constraint("Horizontal", 19),
    Sketcher.Constraint("Vertical", 20),
    Sketcher.Constraint("Horizontal", 21),
    Sketcher.Constraint("Vertical", 22),
    Sketcher.Constraint("Vertical", 24),
    Sketcher.Constraint("Vertical", 26),
    Sketcher.Constraint("Horizontal", 28),
    Sketcher.Constraint("Vertical", 30),
    Sketcher.Constraint("Horizontal", 31),
    Sketcher.Constraint("Vertical", 32),
    Sketcher.Constraint("Horizontal", 34),
    Sketcher.Constraint("Vertical", 36),
    Sketcher.Constraint("Horizontal", 37),
    Sketcher.Constraint("Vertical", 38),
    Sketcher.Constraint("Horizontal", 40),
    Sketcher.Constraint("Vertical", 42),
    Sketcher.Constraint("Vertical", 44),
    Sketcher.Constraint("Vertical", 46),
    Sketcher.Constraint("Horizontal", 48),
    Sketcher.Constraint("Vertical", 50),
    Sketcher.Constraint("Horizontal", 51),
    Sketcher.Constraint("Vertical", 52),
    Sketcher.Constraint("Horizontal", 54),
    Sketcher.Constraint("Vertical", 56),
    Sketcher.Constraint("Horizontal", 57),
    Sketcher.Constraint("Vertical", 58),
    Sketcher.Constraint("Horizontal", 60),
    Sketcher.Constraint("Vertical", 62),
    Sketcher.Constraint("Equal", 6, 9),
    Sketcher.Constraint("Equal", 9, 11),
    Sketcher.Constraint("Equal", 11, 13),
    Sketcher.Constraint("Equal", 13, 15),
    Sketcher.Constraint("Equal", 15, 18),
    Sketcher.Constraint("Equal", 1, 23),
    Sketcher.Constraint("Equal", 25, 27),
    Sketcher.Constraint("Equal", 27, 29),
    Sketcher.Constraint("Equal", 29, 33),
    Sketcher.Constraint("Equal", 33, 35),
    Sketcher.Constraint("Equal", 35, 39),
    Sketcher.Constraint("Equal", 39, 41),
    Sketcher.Constraint("Equal", 41, 43),
    Sketcher.Constraint("Equal", 43, 45),
    Sketcher.Constraint("Equal", 45, 47),
    Sketcher.Constraint("Equal", 47, 49),
    Sketcher.Constraint("Equal", 49, 53),
    Sketcher.Constraint("Equal", 53, 55),
    Sketcher.Constraint("Equal", 55, 59),
    Sketcher.Constraint("Equal", 59, 61),
    Sketcher.Constraint("Equal", 61, 63),
    Sketcher.Constraint("Equal", 64, 65),
    Sketcher.Constraint("Symmetric", 9, 3, 15, 3, -2),
    Sketcher.Constraint("Symmetric", 6, 3, 18, 3, -2),
    Sketcher.Constraint("Symmetric", 29, 3, 39, 3, -2),
    Sketcher.Constraint("Symmetric", 25, 3, 43, 3, -2),
    Sketcher.Constraint("Symmetric", 49, 3, 59, 3, -2),
    Sketcher.Constraint("Symmetric", 64, 3, 65, 3, -2),
    Sketcher.Constraint("Symmetric", 3, 2, 20, 2, -2),
    Sketcher.Constraint("Symmetric", 32, 2, 35, 1, -2),
    Sketcher.Constraint("Symmetric", 26, 2, 41, 1, -2),
    Sketcher.Constraint("Symmetric", 51, 2, 56, 2, -2),
    Sketcher.Constraint("Symmetric", 45, 1, 62, 2, -2),
    Sketcher.Constraint("PointOnObject", 66, 3, -2),
    Sketcher.Constraint("Horizontal", 29, 3, 33, 3),
    Sketcher.Constraint("Horizontal", 49, 3, 53, 3),
    Sketcher.Constraint("Horizontal", 18, 3, 6, 1),
    Sketcher.Constraint("Horizontal", 15, 3, 9, 2),
    Sketcher.Constraint("Horizontal", 13, 3, 10, 2),
    Sketcher.Constraint("Horizontal", 10, 2, 13, 2),
    Sketcher.Constraint("Horizontal", 9, 2, 14, 2),
    Sketcher.Constraint("Horizontal", 6, 1, 17, 2),
    Sketcher.Constraint("Horizontal", 43, 3, 24, 2),
    Sketcher.Constraint("Horizontal", 41, 3, 26, 2),
    Sketcher.Constraint("Horizontal", 26, 2, 29, 1),
    Sketcher.Constraint("Horizontal", 25, 1, 30, 2),
    Sketcher.Constraint("Horizontal", 29, 1, 32, 2),
    Sketcher.Constraint("Horizontal", 31, 2, 36, 2),
    Sketcher.Constraint("Horizontal", 35, 1, 38, 2),
    Sketcher.Constraint("Horizontal", 24, 2, 43, 1),
    Sketcher.Constraint("Horizontal", 63, 3, 44, 2),
    Sketcher.Constraint("Horizontal", 45, 1, 50, 2),
    Sketcher.Constraint("Horizontal", 44, 2, 63, 1),
    Sketcher.Constraint("Vertical", 41, 3, 47, 3),
    Sketcher.Constraint("Vertical", 39, 3, 49, 3),
    Sketcher.Constraint("Vertical", 35, 3, 53, 3),
    Sketcher.Constraint("Vertical", 6, 3, 5, 2),
    Sketcher.Constraint("Vertical", 11, 3, 8, 2),
    Sketcher.Constraint("Vertical", 8, 2, 11, 2),
    Sketcher.Constraint("Vertical", 15, 3, 12, 2),
    Sketcher.Constraint("Vertical", 12, 2, 15, 2),
    Sketcher.Constraint("Vertical", 63, 3, 25, 1),
    Sketcher.Constraint("Vertical", 61, 3, 27, 1),
    Sketcher.Constraint("Vertical", 59, 3, 28, 2),
    Sketcher.Constraint("Vertical", 55, 3, 33, 1),
    Sketcher.Constraint("Vertical", 53, 3, 34, 2),
    Sketcher.Constraint("Vertical", 49, 3, 39, 1),
    Sketcher.Constraint("Vertical", 47, 3, 40, 2),
    Sketcher.Constraint("Equal", 5, 19),
    Sketcher.Constraint("Equal", 3, 21),
    Sketcher.Constraint("Equal", 28, 34),
    Sketcher.Constraint("Equal", 12, 10),
    Sketcher.Constraint("Diameter", 66, Q("2 mm")),
    Sketcher.Constraint("Diameter", 64, Q("2.1 mm")),
    Sketcher.Constraint("Radius", 6, Q("0.399999 mm")),
    Sketcher.Constraint("Radius", 25, Q("0.500001 mm")),
    Sketcher.Constraint("DistanceX", 3, 1, 3, 2, Q("1 mm")),
    Sketcher.Constraint("Radius", 1, Q("1.75 mm")),
    Sketcher.Constraint("DistanceX", 0, 1, 0, 2, Q("20.5 mm")),
    Sketcher.Constraint("DistanceX", 5, 2, 5, 1, Q("11.6 mm")),
    Sketcher.Constraint("DistanceX", 8, 1, 8, 2, Q("0.6 mm")),
    Sketcher.Constraint("DistanceX", 28, 1, 28, 2, Q("0.5 mm")),
    Sketcher.Constraint("DistanceY", 4, 1, 4, 2, Q("1.3 mm")),
    Sketcher.Constraint("DistanceY", 7, 1, 7, 2, Q("1.6 mm")),
    Sketcher.Constraint("DistanceY", 24, 1, 24, 2, Q("7.2 mm")),
    Sketcher.Constraint("DistanceX", 27, 3, -1, 1, Q("3.999999 mm")),
    Sketcher.Constraint("DistanceY", 2, 1, 2, 2, Q("20.95 mm")),
    Sketcher.Constraint("DistanceY", 1, 3, -1, 1, Q("9.6 mm")),
    Sketcher.Constraint("DistanceY", -1, 1, 25, 3, Q("2.249999 mm")),
    Sketcher.Constraint("DistanceX", 64, 3, -1, 1, Q("8.75 mm")),
    Sketcher.Constraint("DistanceY", -1, 1, 64, 3, Q("10.65 mm")),
    Sketcher.Constraint("DistanceY", -1, 1, 66, 3, Q("16.65 mm")),
    Sketcher.Constraint("DistanceY", 26, 1, 26, 2, Q("0.624709 mm")),
    Sketcher.Constraint("DistanceY", 46, 2, 46, 1, Q("0.775291 mm")),
])
pad2 = body.newObject("PartDesign::Pad", "Pad001")
pad2.Profile = sketch2
pad2.Length = 1

doc.recompute()
